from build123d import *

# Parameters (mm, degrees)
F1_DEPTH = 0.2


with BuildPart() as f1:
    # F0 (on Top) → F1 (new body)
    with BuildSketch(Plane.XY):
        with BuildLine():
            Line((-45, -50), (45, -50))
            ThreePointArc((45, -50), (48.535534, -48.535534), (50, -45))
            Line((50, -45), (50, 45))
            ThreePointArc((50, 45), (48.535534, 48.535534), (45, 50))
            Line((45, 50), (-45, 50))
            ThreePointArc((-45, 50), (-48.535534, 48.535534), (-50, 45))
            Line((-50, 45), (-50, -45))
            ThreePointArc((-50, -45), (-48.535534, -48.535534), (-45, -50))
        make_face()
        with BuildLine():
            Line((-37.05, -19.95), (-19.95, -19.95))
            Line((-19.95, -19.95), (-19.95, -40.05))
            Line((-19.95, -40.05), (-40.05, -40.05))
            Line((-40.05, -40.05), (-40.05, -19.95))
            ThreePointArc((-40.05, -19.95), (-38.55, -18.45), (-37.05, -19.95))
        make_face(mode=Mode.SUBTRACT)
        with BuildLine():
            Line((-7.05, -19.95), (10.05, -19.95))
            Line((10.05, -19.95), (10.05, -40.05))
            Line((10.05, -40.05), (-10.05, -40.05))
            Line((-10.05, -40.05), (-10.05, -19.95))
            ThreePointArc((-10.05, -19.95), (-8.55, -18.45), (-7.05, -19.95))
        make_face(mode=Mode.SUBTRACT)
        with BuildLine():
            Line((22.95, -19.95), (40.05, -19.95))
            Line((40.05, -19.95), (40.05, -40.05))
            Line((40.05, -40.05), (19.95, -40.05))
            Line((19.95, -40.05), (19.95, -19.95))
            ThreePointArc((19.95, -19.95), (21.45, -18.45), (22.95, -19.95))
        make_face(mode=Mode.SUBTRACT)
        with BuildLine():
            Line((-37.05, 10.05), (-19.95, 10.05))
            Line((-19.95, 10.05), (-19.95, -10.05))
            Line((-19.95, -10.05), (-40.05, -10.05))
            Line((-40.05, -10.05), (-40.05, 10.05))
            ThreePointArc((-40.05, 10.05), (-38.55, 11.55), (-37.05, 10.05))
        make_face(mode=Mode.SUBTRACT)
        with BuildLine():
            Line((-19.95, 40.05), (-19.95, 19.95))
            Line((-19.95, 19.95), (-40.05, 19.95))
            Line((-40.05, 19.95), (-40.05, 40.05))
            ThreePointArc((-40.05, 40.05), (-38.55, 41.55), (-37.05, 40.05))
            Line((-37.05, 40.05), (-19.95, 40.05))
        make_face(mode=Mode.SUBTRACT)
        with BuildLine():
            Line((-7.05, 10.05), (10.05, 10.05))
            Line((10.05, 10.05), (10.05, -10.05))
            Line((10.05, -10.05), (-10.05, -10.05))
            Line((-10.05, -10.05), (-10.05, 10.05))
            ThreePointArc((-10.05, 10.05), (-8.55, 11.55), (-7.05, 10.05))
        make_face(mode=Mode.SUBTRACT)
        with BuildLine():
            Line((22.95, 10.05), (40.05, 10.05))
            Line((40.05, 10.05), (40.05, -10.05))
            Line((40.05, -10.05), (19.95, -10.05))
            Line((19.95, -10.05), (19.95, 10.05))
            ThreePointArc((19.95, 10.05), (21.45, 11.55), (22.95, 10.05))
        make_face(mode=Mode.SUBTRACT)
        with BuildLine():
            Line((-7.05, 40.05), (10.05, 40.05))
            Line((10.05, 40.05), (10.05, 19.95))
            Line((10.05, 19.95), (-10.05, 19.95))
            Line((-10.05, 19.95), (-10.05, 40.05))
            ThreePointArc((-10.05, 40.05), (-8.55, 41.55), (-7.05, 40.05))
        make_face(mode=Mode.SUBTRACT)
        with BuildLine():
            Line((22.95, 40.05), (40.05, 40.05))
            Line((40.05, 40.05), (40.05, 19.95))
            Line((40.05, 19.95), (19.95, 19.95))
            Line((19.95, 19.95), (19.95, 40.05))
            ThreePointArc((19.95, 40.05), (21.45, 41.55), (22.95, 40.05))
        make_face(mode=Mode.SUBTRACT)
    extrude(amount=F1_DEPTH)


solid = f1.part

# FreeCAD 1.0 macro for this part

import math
import FreeCAD as App
import Part
import Sketcher
from FreeCAD import Vector

doc = App.newDocument("Part")
body = doc.addObject("PartDesign::Body", "Body")

# Sketch on XY plane
sketch1 = body.newObject("Sketcher::SketchObject", "Sketch")
sketch1.AttachmentSupport = (doc.getObject("XY_Plane"), [""])
sketch1.MapMode = "FlatFace"
sketch1.addGeometry(Part.LineSegment(Vector(-45, -50, 0), Vector(45, -50, 0)), False)
sketch1.addGeometry(Part.ArcOfCircle(Part.Circle(Vector(45, -45, 0), Vector(0, 0, 1), 5), math.radians(-90), math.radians(0)), False)
sketch1.addGeometry(Part.LineSegment(Vector(50, -45, 0), Vector(50, 45, 0)), False)
sketch1.addGeometry(Part.ArcOfCircle(Part.Circle(Vector(45, 45, 0), Vector(0, 0, 1), 5), math.radians(0), math.radians(90)), False)
sketch1.addGeometry(Part.LineSegment(Vector(45, 50, 0), Vector(-45, 50, 0)), False)
sketch1.addGeometry(Part.ArcOfCircle(Part.Circle(Vector(-45, 45, 0), Vector(0, 0, 1), 5), math.radians(90), math.radians(180)), False)
sketch1.addGeometry(Part.LineSegment(Vector(-50, 45, 0), Vector(-50, -45, 0)), False)
sketch1.addGeometry(Part.ArcOfCircle(Part.Circle(Vector(-45, -45, 0), Vector(0, 0, 1), 5), math.radians(180), math.radians(270)), False)
sketch1.addGeometry(Part.ArcOfCircle(Part.Circle(Vector(-38.5, -19.9, 0), Vector(0, 0, 1), 1.5), math.radians(0), math.radians(180)), False)
sketch1.addGeometry(Part.LineSegment(Vector(-37, -19.9, 0), Vector(-19.9, -19.9, 0)), False)
sketch1.addGeometry(Part.LineSegment(Vector(-19.9, -19.9, 0), Vector(-19.9, -40, 0)), False)
sketch1.addGeometry(Part.LineSegment(Vector(-19.9, -40, 0), Vector(-40, -40, 0)), False)
sketch1.addGeometry(Part.LineSegment(Vector(-40, -40, 0), Vector(-40, -19.9, 0)), False)
sketch1.addGeometry(Part.ArcOfCircle(Part.Circle(Vector(-8.6, -19.9, 0), Vector(0, 0, 1), 1.5), math.radians(0), math.radians(180)), False)
sketch1.addGeometry(Part.LineSegment(Vector(-7, -19.9, 0), Vector(10.1, -19.9, 0)), False)
sketch1.addGeometry(Part.LineSegment(Vector(10.1, -19.9, 0), Vector(10.1, -40, 0)), False)
sketch1.addGeometry(Part.LineSegment(Vector(10.1, -40, 0), Vector(-10.1, -40, 0)), False)
sketch1.addGeometry(Part.LineSegment(Vector(-10.1, -40, 0), Vector(-10.1, -19.9, 0)), False)
sketch1.addGeometry(Part.ArcOfCircle(Part.Circle(Vector(21.4, -19.9, 0), Vector(0, 0, 1), 1.5), math.radians(0), math.radians(180)), False)
sketch1.addGeometry(Part.LineSegment(Vector(22.9, -19.9, 0), Vector(40, -19.9, 0)), False)
sketch1.addGeometry(Part.LineSegment(Vector(40, -19.9, 0), Vector(40, -40, 0)), False)
sketch1.addGeometry(Part.LineSegment(Vector(40, -40, 0), Vector(19.9, -40, 0)), False)
sketch1.addGeometry(Part.LineSegment(Vector(19.9, -40, 0), Vector(19.9, -19.9, 0)), False)
sketch1.addGeometry(Part.ArcOfCircle(Part.Circle(Vector(-38.5, 10.1, 0), Vector(0, 0, 1), 1.5), math.radians(0), math.radians(180)), False)
sketch1.addGeometry(Part.LineSegment(Vector(-37, 10.1, 0), Vector(-19.9, 10.1, 0)), False)
sketch1.addGeometry(Part.LineSegment(Vector(-19.9, 10.1, 0), Vector(-19.9, -10.1, 0)), False)
sketch1.addGeometry(Part.LineSegment(Vector(-19.9, -10.1, 0), Vector(-40, -10.1, 0)), False)
sketch1.addGeometry(Part.LineSegment(Vector(-40, -10.1, 0), Vector(-40, 10.1, 0)), False)
sketch1.addGeometry(Part.LineSegment(Vector(-37, 40, 0), Vector(-19.9, 40, 0)), False)
sketch1.addGeometry(Part.LineSegment(Vector(-19.9, 40, 0), Vector(-19.9, 19.9, 0)), False)
sketch1.addGeometry(Part.LineSegment(Vector(-19.9, 19.9, 0), Vector(-40, 19.9, 0)), False)
sketch1.addGeometry(Part.LineSegment(Vector(-40, 19.9, 0), Vector(-40, 40, 0)), False)
sketch1.addGeometry(Part.ArcOfCircle(Part.Circle(Vector(-38.5, 40, 0), Vector(0, 0, 1), 1.5), math.radians(0), math.radians(180)), False)
sketch1.addGeometry(Part.ArcOfCircle(Part.Circle(Vector(-8.6, 10.1, 0), Vector(0, 0, 1), 1.5), math.radians(0), math.radians(180)), False)
sketch1.addGeometry(Part.LineSegment(Vector(-7, 10.1, 0), Vector(10.1, 10.1, 0)), False)
sketch1.addGeometry(Part.LineSegment(Vector(10.1, 10.1, 0), Vector(10.1, -10.1, 0)), False)
sketch1.addGeometry(Part.LineSegment(Vector(10.1, -10.1, 0), Vector(-10.1, -10.1, 0)), False)
sketch1.addGeometry(Part.LineSegment(Vector(-10.1, -10.1, 0), Vector(-10.1, 10.1, 0)), False)
sketch1.addGeometry(Part.ArcOfCircle(Part.Circle(Vector(21.4, 10.1, 0), Vector(0, 0, 1), 1.5), math.radians(0), math.radians(180)), False)
sketch1.addGeometry(Part.LineSegment(Vector(22.9, 10.1, 0), Vector(40, 10.1, 0)), False)
sketch1.addGeometry(Part.LineSegment(Vector(40, 10.1, 0), Vector(40, -10.1, 0)), False)
sketch1.addGeometry(Part.LineSegment(Vector(40, -10.1, 0), Vector(19.9, -10.1, 0)), False)
sketch1.addGeometry(Part.LineSegment(Vector(19.9, -10.1, 0), Vector(19.9, 10.1, 0)), False)
sketch1.addGeometry(Part.ArcOfCircle(Part.Circle(Vector(-8.6, 40, 0), Vector(0, 0, 1), 1.5), math.radians(0), math.radians(180)), False)
sketch1.addGeometry(Part.LineSegment(Vector(-7, 40, 0), Vector(10.1, 40, 0)), False)
sketch1.addGeometry(Part.LineSegment(Vector(10.1, 40, 0), Vector(10.1, 19.9, 0)), False)
sketch1.addGeometry(Part.LineSegment(Vector(10.1, 19.9, 0), Vector(-10.1, 19.9, 0)), False)
sketch1.addGeometry(Part.LineSegment(Vector(-10.1, 19.9, 0), Vector(-10.1, 40, 0)), False)
sketch1.addGeometry(Part.ArcOfCircle(Part.Circle(Vector(21.4, 40, 0), Vector(0, 0, 1), 1.5), math.radians(0), math.radians(180)), False)
sketch1.addGeometry(Part.LineSegment(Vector(22.9, 40, 0), Vector(40, 40, 0)), False)
sketch1.addGeometry(Part.LineSegment(Vector(40, 40, 0), Vector(40, 19.9, 0)), False)
sketch1.addGeometry(Part.LineSegment(Vector(40, 19.9, 0), Vector(19.9, 19.9, 0)), False)
sketch1.addGeometry(Part.LineSegment(Vector(19.9, 19.9, 0), Vector(19.9, 40, 0)), False)
sketch1.addConstraint(Sketcher.Constraint("Tangent", 0, 2, 1, 1))
sketch1.addConstraint(Sketcher.Constraint("Tangent", 1, 2, 2, 1))
sketch1.addConstraint(Sketcher.Constraint("Tangent", 2, 2, 3, 1))
sketch1.addConstraint(Sketcher.Constraint("Tangent", 3, 2, 4, 1))
sketch1.addConstraint(Sketcher.Constraint("Tangent", 4, 2, 5, 1))
sketch1.addConstraint(Sketcher.Constraint("Tangent", 5, 2, 6, 1))
sketch1.addConstraint(Sketcher.Constraint("Tangent", 6, 2, 7, 1))
sketch1.addConstraint(Sketcher.Constraint("Tangent", 7, 2, 0, 1))
sketch1.addConstraint(Sketcher.Constraint("Coincident", 8, 1, 9, 1))
sketch1.addConstraint(Sketcher.Constraint("Coincident", 9, 2, 10, 1))
sketch1.addConstraint(Sketcher.Constraint("Coincident", 10, 2, 11, 1))
sketch1.addConstraint(Sketcher.Constraint("Coincident", 11, 2, 12, 1))
sketch1.addConstraint(Sketcher.Constraint("Tangent", 12, 2, 8, 2))
sketch1.addConstraint(Sketcher.Constraint("Coincident", 13, 1, 14, 1))
sketch1.addConstraint(Sketcher.Constraint("Coincident", 14, 2, 15, 1))
sketch1.addConstraint(Sketcher.Constraint("Coincident", 15, 2, 16, 1))
sketch1.addConstraint(Sketcher.Constraint("Coincident", 16, 2, 17, 1))
sketch1.addConstraint(Sketcher.Constraint("Tangent", 17, 2, 13, 2))
sketch1.addConstraint(Sketcher.Constraint("Coincident", 18, 1, 19, 1))
sketch1.addConstraint(Sketcher.Constraint("Coincident", 19, 2, 20, 1))
sketch1.addConstraint(Sketcher.Constraint("Coincident", 20, 2, 21, 1))
sketch1.addConstraint(Sketcher.Constraint("Coincident", 21, 2, 22, 1))
sketch1.addConstraint(Sketcher.Constraint("Tangent", 22, 2, 18, 2))
sketch1.addConstraint(Sketcher.Constraint("Coincident", 23, 1, 24, 1))
sketch1.addConstraint(Sketcher.Constraint("Coincident", 24, 2, 25, 1))
sketch1.addConstraint(Sketcher.Constraint("Coincident", 25, 2, 26, 1))
sketch1.addConstraint(Sketcher.Constraint("Coincident", 26, 2, 27, 1))
sketch1.addConstraint(Sketcher.Constraint("Tangent", 27, 2, 23, 2))
sketch1.addConstraint(Sketcher.Constraint("Coincident", 28, 2, 29, 1))
sketch1.addConstraint(Sketcher.Constraint("Coincident", 29, 2, 30, 1))
sketch1.addConstraint(Sketcher.Constraint("Coincident", 30, 2, 31, 1))
sketch1.addConstraint(Sketcher.Constraint("Tangent", 31, 2, 32, 2))
sketch1.addConstraint(Sketcher.Constraint("Coincident", 32, 1, 28, 1))
sketch1.addConstraint(Sketcher.Constraint("Coincident", 33, 1, 34, 1))
sketch1.addConstraint(Sketcher.Constraint("Coincident", 34, 2, 35, 1))
sketch1.addConstraint(Sketcher.Constraint("Coincident", 35, 2, 36, 1))
sketch1.addConstraint(Sketcher.Constraint("Coincident", 36, 2, 37, 1))
sketch1.addConstraint(Sketcher.Constraint("Tangent", 37, 2, 33, 2))
sketch1.addConstraint(Sketcher.Constraint("Coincident", 38, 1, 39, 1))
sketch1.addConstraint(Sketcher.Constraint("Coincident", 39, 2, 40, 1))
sketch1.addConstraint(Sketcher.Constraint("Coincident", 40, 2, 41, 1))
sketch1.addConstraint(Sketcher.Constraint("Coincident", 41, 2, 42, 1))
sketch1.addConstraint(Sketcher.Constraint("Tangent", 42, 2, 38, 2))
sketch1.addConstraint(Sketcher.Constraint("Coincident", 43, 1, 44, 1))
sketch1.addConstraint(Sketcher.Constraint("Coincident", 44, 2, 45, 1))
sketch1.addConstraint(Sketcher.Constraint("Coincident", 45, 2, 46, 1))
sketch1.addConstraint(Sketcher.Constraint("Coincident", 46, 2, 47, 1))
sketch1.addConstraint(Sketcher.Constraint("Tangent", 47, 2, 43, 2))
sketch1.addConstraint(Sketcher.Constraint("Coincident", 48, 1, 49, 1))
sketch1.addConstraint(Sketcher.Constraint("Coincident", 49, 2, 50, 1))
sketch1.addConstraint(Sketcher.Constraint("Coincident", 50, 2, 51, 1))
sketch1.addConstraint(Sketcher.Constraint("Coincident", 51, 2, 52, 1))
sketch1.addConstraint(Sketcher.Constraint("Tangent", 52, 2, 48, 2))
sketch1.addConstraint(Sketcher.Constraint("Horizontal", 0))
sketch1.addConstraint(Sketcher.Constraint("Vertical", 2))
sketch1.addConstraint(Sketcher.Constraint("Horizontal", 4))
sketch1.addConstraint(Sketcher.Constraint("Vertical", 6))
sketch1.addConstraint(Sketcher.Constraint("Horizontal", 9))
sketch1.addConstraint(Sketcher.Constraint("Vertical", 10))
sketch1.addConstraint(Sketcher.Constraint("Horizontal", 11))
sketch1.addConstraint(Sketcher.Constraint("Vertical", 12))
sketch1.addConstraint(Sketcher.Constraint("Horizontal", 14))
sketch1.addConstraint(Sketcher.Constraint("Vertical", 15))
sketch1.addConstraint(Sketcher.Constraint("Horizontal", 16))
sketch1.addConstraint(Sketcher.Constraint("Vertical", 17))
sketch1.addConstraint(Sketcher.Constraint("Horizontal", 19))
sketch1.addConstraint(Sketcher.Constraint("Vertical", 20))
sketch1.addConstraint(Sketcher.Constraint("Horizontal", 21))
sketch1.addConstraint(Sketcher.Constraint("Vertical", 22))
sketch1.addConstraint(Sketcher.Constraint("Horizontal", 24))
sketch1.addConstraint(Sketcher.Constraint("Vertical", 25))
sketch1.addConstraint(Sketcher.Constraint("Horizontal", 26))
sketch1.addConstraint(Sketcher.Constraint("Vertical", 27))
sketch1.addConstraint(Sketcher.Constraint("Horizontal", 28))
sketch1.addConstraint(Sketcher.Constraint("Vertical", 29))
sketch1.addConstraint(Sketcher.Constraint("Horizontal", 30))
sketch1.addConstraint(Sketcher.Constraint("Vertical", 31))
sketch1.addConstraint(Sketcher.Constraint("Horizontal", 34))
sketch1.addConstraint(Sketcher.Constraint("Vertical", 35))
sketch1.addConstraint(Sketcher.Constraint("Horizontal", 36))
sketch1.addConstraint(Sketcher.Constraint("Vertical", 37))
sketch1.addConstraint(Sketcher.Constraint("Horizontal", 39))
sketch1.addConstraint(Sketcher.Constraint("Vertical", 40))
sketch1.addConstraint(Sketcher.Constraint("Horizontal", 41))
sketch1.addConstraint(Sketcher.Constraint("Vertical", 42))
sketch1.addConstraint(Sketcher.Constraint("Horizontal", 44))
sketch1.addConstraint(Sketcher.Constraint("Vertical", 45))
sketch1.addConstraint(Sketcher.Constraint("Horizontal", 46))
sketch1.addConstraint(Sketcher.Constraint("Vertical", 47))
sketch1.addConstraint(Sketcher.Constraint("Horizontal", 49))
sketch1.addConstraint(Sketcher.Constraint("Vertical", 50))
sketch1.addConstraint(Sketcher.Constraint("Horizontal", 51))
sketch1.addConstraint(Sketcher.Constraint("Vertical", 52))
sketch1.addConstraint(Sketcher.Constraint("Equal", 1, 3))
sketch1.addConstraint(Sketcher.Constraint("Equal", 3, 5))
sketch1.addConstraint(Sketcher.Constraint("Equal", 5, 7))
sketch1.addConstraint(Sketcher.Constraint("Equal", 8, 13))
sketch1.addConstraint(Sketcher.Constraint("Equal", 13, 18))
sketch1.addConstraint(Sketcher.Constraint("Equal", 18, 23))
sketch1.addConstraint(Sketcher.Constraint("Equal", 23, 32))
sketch1.addConstraint(Sketcher.Constraint("Equal", 32, 33))
sketch1.addConstraint(Sketcher.Constraint("Equal", 33, 38))
sketch1.addConstraint(Sketcher.Constraint("Equal", 38, 43))
sketch1.addConstraint(Sketcher.Constraint("Equal", 43, 48))
sketch1.addConstraint(Sketcher.Constraint("Symmetric", 1, 3, 5, 3, -1, 1))
sketch1.addConstraint(Sketcher.Constraint("Symmetric", 21, 2, 28, 2, -1, 1))
sketch1.addConstraint(Sketcher.Constraint("Symmetric", 19, 2, 30, 2, -1, 1))
sketch1.addConstraint(Sketcher.Constraint("Symmetric", 34, 2, 36, 2, -1, 1))
sketch1.addConstraint(Sketcher.Constraint("Symmetric", 26, 2, 39, 2, -1, 1))
sketch1.addConstraint(Sketcher.Constraint("Symmetric", 24, 2, 41, 2, -1, 1))
sketch1.addConstraint(Sketcher.Constraint("Symmetric", 16, 2, 44, 2, -1, 1))
sketch1.addConstraint(Sketcher.Constraint("Symmetric", 14, 2, 46, 2, -1, 1))
sketch1.addConstraint(Sketcher.Constraint("Symmetric", 11, 2, 49, 2, -1, 1))
sketch1.addConstraint(Sketcher.Constraint("Symmetric", 9, 2, 51, 2, -1, 1))
sketch1.addConstraint(Sketcher.Constraint("Symmetric", 14, 2, 17, 2, -2))
sketch1.addConstraint(Sketcher.Constraint("Symmetric", 12, 2, 19, 2, -2))
sketch1.addConstraint(Sketcher.Constraint("Symmetric", 10, 2, 21, 2, -2))
sketch1.addConstraint(Sketcher.Constraint("Horizontal", 8, 3, 13, 3))
sketch1.addConstraint(Sketcher.Constraint("Horizontal", 13, 3, 18, 3))
sketch1.addConstraint(Sketcher.Constraint("Horizontal", 23, 3, 33, 3))
sketch1.addConstraint(Sketcher.Constraint("Horizontal", 33, 3, 38, 3))
sketch1.addConstraint(Sketcher.Constraint("Horizontal", 32, 3, 43, 3))
sketch1.addConstraint(Sketcher.Constraint("Horizontal", 43, 3, 48, 3))
sketch1.addConstraint(Sketcher.Constraint("Horizontal", 18, 3, 8, 1))
sketch1.addConstraint(Sketcher.Constraint("Horizontal", 11, 2, 15, 2))
sketch1.addConstraint(Sketcher.Constraint("Horizontal", 38, 3, 23, 1))
sketch1.addConstraint(Sketcher.Constraint("Horizontal", 48, 3, 28, 2))
sketch1.addConstraint(Sketcher.Constraint("Horizontal", 27, 2, 33, 1))
sketch1.addConstraint(Sketcher.Constraint("Horizontal", 26, 2, 35, 2))
sketch1.addConstraint(Sketcher.Constraint("Vertical", 8, 3, 23, 3))
sketch1.addConstraint(Sketcher.Constraint("Vertical", 13, 3, 33, 3))
sketch1.addConstraint(Sketcher.Constraint("Vertical", 18, 3, 38, 3))
sketch1.addConstraint(Sketcher.Constraint("Equal", 9, 14))
sketch1.addConstraint(Sketcher.Constraint("Equal", 4, 2))
sketch1.addConstraint(Sketcher.Constraint("Equal", 51, 10))
sketch1.addConstraint(Sketcher.Constraint("Equal", 22, 25))
sketch1.addConstraint(Sketcher.Constraint("Radius", 1, 5.0))
sketch1.addConstraint(Sketcher.Constraint("Radius", 8, 1.5))
sketch1.addConstraint(Sketcher.Constraint("DistanceX", 0, 1, 0, 2, 90.0))
sketch1.addConstraint(Sketcher.Constraint("DistanceX", 9, 1, 9, 2, 17.1))
sketch1.addConstraint(Sketcher.Constraint("DistanceX", 8, 3, -1, 1, 38.55))
sketch1.addConstraint(Sketcher.Constraint("DistanceY", 8, 3, -1, 1, 19.95))
pad1 = body.newObject("PartDesign::Pad", "Pad")
pad1.Profile = sketch1
pad1.Length = 0.2

doc.recompute()
